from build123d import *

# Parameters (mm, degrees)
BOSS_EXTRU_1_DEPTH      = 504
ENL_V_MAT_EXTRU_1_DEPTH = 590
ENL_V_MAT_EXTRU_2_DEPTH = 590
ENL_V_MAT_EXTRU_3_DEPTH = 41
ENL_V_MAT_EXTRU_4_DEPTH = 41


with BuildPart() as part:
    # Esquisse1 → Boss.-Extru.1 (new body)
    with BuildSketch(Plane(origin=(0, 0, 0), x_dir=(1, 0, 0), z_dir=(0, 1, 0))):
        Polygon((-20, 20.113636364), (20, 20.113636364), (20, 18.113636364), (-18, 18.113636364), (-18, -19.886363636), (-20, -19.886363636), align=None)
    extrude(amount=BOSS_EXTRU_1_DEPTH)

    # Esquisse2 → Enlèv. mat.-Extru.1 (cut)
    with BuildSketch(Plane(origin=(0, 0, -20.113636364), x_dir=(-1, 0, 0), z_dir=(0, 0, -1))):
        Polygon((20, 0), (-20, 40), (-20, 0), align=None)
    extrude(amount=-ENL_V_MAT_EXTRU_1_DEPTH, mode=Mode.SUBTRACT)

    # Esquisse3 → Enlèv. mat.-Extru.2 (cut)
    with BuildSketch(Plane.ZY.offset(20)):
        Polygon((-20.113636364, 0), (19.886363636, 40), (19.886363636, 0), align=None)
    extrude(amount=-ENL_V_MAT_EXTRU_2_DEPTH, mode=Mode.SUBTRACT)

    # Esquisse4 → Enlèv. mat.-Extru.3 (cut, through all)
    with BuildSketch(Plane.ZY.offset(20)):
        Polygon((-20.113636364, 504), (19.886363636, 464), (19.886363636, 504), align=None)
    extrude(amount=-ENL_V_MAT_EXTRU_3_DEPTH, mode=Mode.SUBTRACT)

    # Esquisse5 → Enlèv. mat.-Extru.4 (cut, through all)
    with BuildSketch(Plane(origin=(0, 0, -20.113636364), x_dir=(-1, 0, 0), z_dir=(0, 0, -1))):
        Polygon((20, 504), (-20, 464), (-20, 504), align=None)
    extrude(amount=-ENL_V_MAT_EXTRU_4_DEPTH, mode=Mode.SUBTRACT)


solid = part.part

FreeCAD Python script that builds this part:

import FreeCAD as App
import Part
import Sketcher

V = App.Vector
Q = App.Units.Quantity

doc = App.newDocument("Part")
body = doc.addObject("PartDesign::Body", "Body")

sketch1 = body.newObject("Sketcher::SketchObject", "Sketch")
sketch1.AttachmentSupport = (doc.getObject("XZ_Plane"), [""])
sketch1.MapMode = "FlatFace"
sketch1.addGeometry(Part.LineSegment(V(20, -20.113636, 0), V(-20, -20.113636, 0)), False)
sketch1.addGeometry(Part.LineSegment(V(-20, -20.113636, 0), V(-20, 19.886364, 0)), False)
sketch1.addGeometry(Part.LineSegment(V(-20, 19.886364, 0), V(-18, 19.886364, 0)), False)
sketch1.addGeometry(Part.LineSegment(V(-18, 19.886364, 0), V(-18, -18.113636, 0)), False)
sketch1.addGeometry(Part.LineSegment(V(-18, -18.113636, 0), V(20, -18.113636, 0)), False)
sketch1.addGeometry(Part.LineSegment(V(20, -18.113636, 0), V(20, -20.113636, 0)), False)
sketch1.addConstraint(Sketcher.Constraint("Coincident", 0, 2, 1, 1))
sketch1.addConstraint(Sketcher.Constraint("Coincident", 1, 2, 2, 1))
sketch1.addConstraint(Sketcher.Constraint("Coincident", 2, 2, 3, 1))
sketch1.addConstraint(Sketcher.Constraint("Coincident", 3, 2, 4, 1))
sketch1.addConstraint(Sketcher.Constraint("Coincident", 4, 2, 5, 1))
sketch1.addConstraint(Sketcher.Constraint("Coincident", 5, 2, 0, 1))
sketch1.addConstraint(Sketcher.Constraint("Horizontal", 0))
sketch1.addConstraint(Sketcher.Constraint("Vertical", 1))
sketch1.addConstraint(Sketcher.Constraint("Horizontal", 2))
sketch1.addConstraint(Sketcher.Constraint("Vertical", 3))
sketch1.addConstraint(Sketcher.Constraint("Horizontal", 4))
sketch1.addConstraint(Sketcher.Constraint("Vertical", 5))
sketch1.addConstraint(Sketcher.Constraint("Equal", 0, 1))
sketch1.addConstraint(Sketcher.Constraint("Equal", 4, 3))
sketch1.addConstraint(Sketcher.Constraint("DistanceX", 0, 2, 0, 1, Q("40 mm")))
sketch1.addConstraint(Sketcher.Constraint("DistanceX", 2, 1, 2, 2, Q("2 mm")))
sketch1.addConstraint(Sketcher.Constraint("DistanceX", 0, 2, -1, 1, Q("20 mm")))
sketch1.addConstraint(Sketcher.Constraint("DistanceY", 0, 2, -1, 1, Q("20.113636 mm")))
pad1 = body.newObject("PartDesign::Pad", "Pad")
pad1.Profile = sketch1
pad1.Length = 504
pad1.Reversed = True

sketch2 = body.newObject("Sketcher::SketchObject", "Sketch001")
sketch2.AttachmentSupport = (doc.getObject("XY_Plane"), [""])
sketch2.MapMode = "FlatFace"
sketch2.AttachmentOffset = App.Placement(V(0, 0, -20.113636), App.Rotation())
sketch2.addGeometry(Part.LineSegment(V(-20, 0, 0), V(20, 40, 0)), False)
sketch2.addGeometry(Part.LineSegment(V(20, 40, 0), V(20, 0, 0)), False)
sketch2.addGeometry(Part.LineSegment(V(20, 0, 0), V(-20, 0, 0)), False)
sketch2.addConstraint(Sketcher.Constraint("Coincident", 0, 2, 1, 1))
sketch2.addConstraint(Sketcher.Constraint("Coincident", 1, 2, 2, 1))
sketch2.addConstraint(Sketcher.Constraint("Coincident", 2, 2, 0, 1))
sketch2.addConstraint(Sketcher.Constraint("Vertical", 1))
sketch2.addConstraint(Sketcher.Constraint("Horizontal", 2))
sketch2.addConstraint(Sketcher.Constraint("Symmetric", 1, 2, 2, 2, -1, 1))
sketch2.addConstraint(Sketcher.Constraint("Equal", 2, 1))
sketch2.addConstraint(Sketcher.Constraint("DistanceX", 2, 2, 2, 1, Q("40 mm")))
pocket1 = body.newObject("PartDesign::Pocket", "Pocket")
pocket1.Profile = sketch2
pocket1.Length = 590
pocket1.Reversed = True

sketch3 = body.newObject("Sketcher::SketchObject", "Sketch002")
sketch3.AttachmentSupport = (doc.getObject("YZ_Plane"), [""])
sketch3.MapMode = "FlatFace"
sketch3.AttachmentOffset = App.Placement(V(0, 0, -20), App.Rotation())
sketch3.addGeometry(Part.LineSegment(V(40, 19.886364, 0), V(0, -20.113636, 0)), False)
sketch3.addGeometry(Part.LineSegment(V(0, -20.113636, 0), V(0, 19.886364, 0)), False)
sketch3.addGeometry(Part.LineSegment(V(0, 19.886364, 0), V(40, 19.886364, 0)), False)
sketch3.addConstraint(Sketcher.Constraint("Coincident", 0, 2, 1, 1))
sketch3.addConstraint(Sketcher.Constraint("Coincident", 1, 2, 2, 1))
sketch3.addConstraint(Sketcher.Constraint("Coincident", 2, 2, 0, 1))
sketch3.addConstraint(Sketcher.Constraint("Vertical", 1))
sketch3.addConstraint(Sketcher.Constraint("Horizontal", 2))
sketch3.addConstraint(Sketcher.Constraint("PointOnObject", 0, 2, -2))
sketch3.addConstraint(Sketcher.Constraint("Equal", 2, 1))
sketch3.addConstraint(Sketcher.Constraint("DistanceX", 2, 1, 2, 2, Q("40 mm")))
sketch3.addConstraint(Sketcher.Constraint("DistanceY", 0, 2, -1, 1, Q("20.113636 mm")))
pocket2 = body.newObject("PartDesign::Pocket", "Pocket001")
pocket2.Profile = sketch3
pocket2.Length = 590
pocket2.Reversed = True

sketch4 = body.newObject("Sketcher::SketchObject", "Sketch003")
sketch4.AttachmentSupport = (doc.getObject("YZ_Plane"), [""])
sketch4.MapMode = "FlatFace"
sketch4.AttachmentOffset = App.Placement(V(0, 0, -20), App.Rotation())
sketch4.addGeometry(Part.LineSegment(V(504, -20.113636, 0), V(464, 19.886364, 0)), False)
sketch4.addGeometry(Part.LineSegment(V(464, 19.886364, 0), V(504, 19.886364, 0)), False)
sketch4.addGeometry(Part.LineSegment(V(504, 19.886364, 0), V(504, -20.113636, 0)), False)
sketch4.addConstraint(Sketcher.Constraint("Coincident", 0, 2, 1, 1))
sketch4.addConstraint(Sketcher.Constraint("Coincident", 1, 2, 2, 1))
sketch4.addConstraint(Sketcher.Constraint("Coincident", 2, 2, 0, 1))
sketch4.addConstraint(Sketcher.Constraint("Horizontal", 1))
sketch4.addConstraint(Sketcher.Constraint("Vertical", 2))
sketch4.addConstraint(Sketcher.Constraint("Equal", 1, 2))
sketch4.addConstraint(Sketcher.Constraint("DistanceX", 1, 1, 1, 2, Q("40 mm")))
sketch4.addConstraint(Sketcher.Constraint("DistanceX", -1, 1, 0, 2, Q("464 mm")))
sketch4.addConstraint(Sketcher.Constraint("DistanceY", -1, 1, 0, 2, Q("19.886364 mm")))
pocket3 = body.newObject("PartDesign::Pocket", "Pocket002")
pocket3.Profile = sketch4
pocket3.Type = "ThroughAll"
pocket3.Reversed = True

sketch5 = body.newObject("Sketcher::SketchObject", "Sketch004")
sketch5.AttachmentSupport = (doc.getObject("XY_Plane"), [""])
sketch5.MapMode = "FlatFace"
sketch5.AttachmentOffset = App.Placement(V(0, 0, -20.113636), App.Rotation())
sketch5.addGeometry(Part.LineSegment(V(20, 464, 0), V(-20, 504, 0)), False)
sketch5.addGeometry(Part.LineSegment(V(-20, 504, 0), V(20, 504, 0)), False)
sketch5.addGeometry(Part.LineSegment(V(20, 504, 0), V(20, 464, 0)), False)
sketch5.addConstraint(Sketcher.Constraint("Coincident", 0, 2, 1, 1))
sketch5.addConstraint(Sketcher.Constraint("Coincident", 1, 2, 2, 1))
sketch5.addConstraint(Sketcher.Constraint("Coincident", 2, 2, 0, 1))
sketch5.addConstraint(Sketcher.Constraint("Horizontal", 1))
sketch5.addConstraint(Sketcher.Constraint("Vertical", 2))
sketch5.addConstraint(Sketcher.Constraint("Equal", 1, 2))
sketch5.addConstraint(Sketcher.Constraint("DistanceX", 1, 1, 1, 2, Q("40 mm")))
sketch5.addConstraint(Sketcher.Constraint("DistanceX", 0, 2, -1, 1, Q("20 mm")))
sketch5.addConstraint(Sketcher.Constraint("DistanceY", -1, 1, 0, 2, Q("504 mm")))
pocket4 = body.newObject("PartDesign::Pocket", "Pocket003")
pocket4.Profile = sketch5
pocket4.Type = "ThroughAll"
pocket4.Reversed = True

doc.recompute()
